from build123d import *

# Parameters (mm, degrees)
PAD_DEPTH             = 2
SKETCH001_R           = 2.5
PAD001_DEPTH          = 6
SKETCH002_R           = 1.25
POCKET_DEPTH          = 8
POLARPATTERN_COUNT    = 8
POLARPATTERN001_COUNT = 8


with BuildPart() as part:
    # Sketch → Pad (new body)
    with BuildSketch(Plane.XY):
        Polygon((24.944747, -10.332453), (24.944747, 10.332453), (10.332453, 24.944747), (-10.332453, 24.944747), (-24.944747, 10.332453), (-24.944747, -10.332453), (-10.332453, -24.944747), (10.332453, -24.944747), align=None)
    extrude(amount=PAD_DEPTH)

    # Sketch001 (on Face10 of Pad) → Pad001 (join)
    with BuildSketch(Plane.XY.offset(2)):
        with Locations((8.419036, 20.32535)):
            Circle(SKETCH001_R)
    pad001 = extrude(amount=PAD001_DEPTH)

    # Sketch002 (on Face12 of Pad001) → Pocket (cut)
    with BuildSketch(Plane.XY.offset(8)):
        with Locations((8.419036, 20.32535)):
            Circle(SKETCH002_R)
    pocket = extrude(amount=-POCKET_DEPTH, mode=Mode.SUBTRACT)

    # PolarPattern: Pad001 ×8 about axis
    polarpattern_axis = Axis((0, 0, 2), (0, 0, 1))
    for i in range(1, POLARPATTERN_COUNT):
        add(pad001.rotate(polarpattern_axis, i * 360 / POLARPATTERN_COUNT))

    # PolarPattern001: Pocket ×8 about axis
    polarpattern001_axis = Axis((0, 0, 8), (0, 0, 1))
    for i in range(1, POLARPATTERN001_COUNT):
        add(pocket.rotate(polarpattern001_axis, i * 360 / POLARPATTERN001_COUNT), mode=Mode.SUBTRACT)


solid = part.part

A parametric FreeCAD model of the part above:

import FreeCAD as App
import Part
import Sketcher

V = App.Vector

doc = App.newDocument("Part")
body = doc.addObject("PartDesign::Body", "Body")

# Sketch on XY plane
sketch1 = body.newObject("Sketcher::SketchObject", "Sketch")
sketch1.AttachmentSupport = (doc.getObject("XY_Plane"), [""])
sketch1.MapMode = "FlatFace"
sketch1.addGeometry(Part.LineSegment(V(25, -10, 0), V(25, 10, 0)), False)
sketch1.addGeometry(Part.LineSegment(V(25, 10, 0), V(10, 25, 0)), False)
sketch1.addGeometry(Part.LineSegment(V(10, 25, 0), V(-10, 25, 0)), False)
sketch1.addGeometry(Part.LineSegment(V(-10, 25, 0), V(-25, 10, 0)), False)
sketch1.addGeometry(Part.LineSegment(V(-25, 10, 0), V(-25, -10, 0)), False)
sketch1.addGeometry(Part.LineSegment(V(-25, -10, 0), V(-10, -25, 0)), False)
sketch1.addGeometry(Part.LineSegment(V(-10, -25, 0), V(10, -25, 0)), False)
sketch1.addGeometry(Part.LineSegment(V(10, -25, 0), V(25, -10, 0)), False)
sketch1.addConstraint(Sketcher.Constraint("Coincident", 0, 2, 1, 1))
sketch1.addConstraint(Sketcher.Constraint("Coincident", 1, 2, 2, 1))
sketch1.addConstraint(Sketcher.Constraint("Coincident", 2, 2, 3, 1))
sketch1.addConstraint(Sketcher.Constraint("Coincident", 3, 2, 4, 1))
sketch1.addConstraint(Sketcher.Constraint("Coincident", 4, 2, 5, 1))
sketch1.addConstraint(Sketcher.Constraint("Coincident", 5, 2, 6, 1))
sketch1.addConstraint(Sketcher.Constraint("Coincident", 6, 2, 7, 1))
sketch1.addConstraint(Sketcher.Constraint("Coincident", 7, 2, 0, 1))
sketch1.addConstraint(Sketcher.Constraint("Vertical", 0))
sketch1.addConstraint(Sketcher.Constraint("Horizontal", 2))
sketch1.addConstraint(Sketcher.Constraint("Vertical", 4))
sketch1.addConstraint(Sketcher.Constraint("Horizontal", 6))
sketch1.addConstraint(Sketcher.Constraint("Symmetric", 0, 2, 4, 2, -1, 1))
sketch1.addConstraint(Sketcher.Constraint("Symmetric", 1, 2, 5, 2, -1, 1))
sketch1.addConstraint(Sketcher.Constraint("Perpendicular", 1, 3))
sketch1.addConstraint(Sketcher.Constraint("Perpendicular", 5, 7))
sketch1.addConstraint(Sketcher.Constraint("Horizontal", 0, 2, 3, 2))
sketch1.addConstraint(Sketcher.Constraint("Horizontal", 4, 2, 7, 2))
sketch1.addConstraint(Sketcher.Constraint("Vertical", 2, 2, 5, 2))
sketch1.addConstraint(Sketcher.Constraint("Equal", 6, 0))
sketch1.addConstraint(Sketcher.Constraint("DistanceX", 2, 2, 0, 2, 35.2772))
sketch1.addConstraint(Sketcher.Constraint("DistanceX", 2, 2, 2, 1, 20.664906))
pad1 = body.newObject("PartDesign::Pad", "Pad")
pad1.Profile = sketch1
pad1.Length = 2

# Sketch on XY plane
sketch2 = body.newObject("Sketcher::SketchObject", "Sketch001")
sketch2.AttachmentSupport = (doc.getObject("XY_Plane"), [""])
sketch2.MapMode = "FlatFace"
sketch2.AttachmentOffset = App.Placement(V(0, 0, 2), App.Rotation())
sketch2.addGeometry(Part.Circle(V(8.4, 20.3, 0), V(0, 0, 1), 2.5), False)
sketch2.addConstraint(Sketcher.Constraint("Diameter", 0, 5.0))
sketch2.addConstraint(Sketcher.Constraint("DistanceY", -1, 1, 0, 3, 20.32535))
sketch2.addConstraint(Sketcher.Constraint("DistanceX", -1, 1, 0, 3, 8.419036))
pad2 = body.newObject("PartDesign::Pad", "Pad001")
pad2.Profile = sketch2
pad2.Length = 6

# Sketch on XY plane
sketch3 = body.newObject("Sketcher::SketchObject", "Sketch002")
sketch3.AttachmentSupport = (doc.getObject("XY_Plane"), [""])
sketch3.MapMode = "FlatFace"
sketch3.AttachmentOffset = App.Placement(V(0, 0, 8), App.Rotation())
sketch3.addGeometry(Part.Circle(V(8.4, 20.3, 0), V(0, 0, 1), 1.2), False)
sketch3.addConstraint(Sketcher.Constraint("Diameter", 0, 2.5))
sketch3.addConstraint(Sketcher.Constraint("DistanceY", -1, 1, 0, 3, 20.32535))
sketch3.addConstraint(Sketcher.Constraint("DistanceX", -1, 1, 0, 3, 8.419036))
pocket1 = body.newObject("PartDesign::Pocket", "Pocket")
pocket1.Profile = sketch3
pocket1.Length = 8
doc.recompute()

polarpattern = body.newObject("PartDesign::PolarPattern", "PolarPattern")
polarpattern.Originals = [pad2]
polarpattern.Axis = (doc.getObject("Z_Axis"), [""])
polarpattern.Angle = 360
polarpattern.Occurrences = 8
body.Tip = polarpattern
doc.recompute()

polarpattern2 = body.newObject("PartDesign::PolarPattern", "PolarPattern001")
polarpattern2.Originals = [pocket1]
polarpattern2.Axis = (doc.getObject("Z_Axis"), [""])
polarpattern2.Angle = 360
polarpattern2.Occurrences = 8
body.Tip = polarpattern2

doc.recompute()
